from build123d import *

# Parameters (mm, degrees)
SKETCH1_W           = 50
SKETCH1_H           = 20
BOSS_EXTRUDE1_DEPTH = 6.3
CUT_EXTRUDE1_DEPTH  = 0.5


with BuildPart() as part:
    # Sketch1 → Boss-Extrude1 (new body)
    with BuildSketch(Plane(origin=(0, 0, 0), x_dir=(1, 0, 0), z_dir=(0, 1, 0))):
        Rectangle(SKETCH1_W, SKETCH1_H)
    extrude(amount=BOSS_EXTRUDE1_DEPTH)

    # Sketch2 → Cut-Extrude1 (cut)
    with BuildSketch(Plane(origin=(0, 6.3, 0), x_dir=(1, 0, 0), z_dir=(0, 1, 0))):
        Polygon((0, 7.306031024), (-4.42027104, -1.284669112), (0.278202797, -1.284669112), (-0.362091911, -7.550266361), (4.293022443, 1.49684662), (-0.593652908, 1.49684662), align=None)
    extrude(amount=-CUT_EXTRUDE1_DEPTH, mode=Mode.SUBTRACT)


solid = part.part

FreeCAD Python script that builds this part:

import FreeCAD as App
import Part
import Sketcher

V = App.Vector
Q = App.Units.Quantity

doc = App.newDocument("Part")
body = doc.addObject("PartDesign::Body", "Body")

# Sketch on XZ plane
sketch1 = body.newObject("Sketcher::SketchObject", "Sketch")
sketch1.AttachmentSupport = (doc.getObject("XZ_Plane"), [""])
sketch1.MapMode = "FlatFace"
sketch1.addGeometry([
    Part.LineSegment(V(-25, -10, 0), V(-25, 10, 0)),
    Part.LineSegment(V(-25, 10, 0), V(25, 10, 0)),
    Part.LineSegment(V(25, 10, 0), V(25, -10, 0)),
    Part.LineSegment(V(25, -10, 0), V(-25, -10, 0)),
], False)
sketch1.addConstraint([
    Sketcher.Constraint("Coincident", 0, 2, 1, 1),
    Sketcher.Constraint("Coincident", 1, 2, 2, 1),
    Sketcher.Constraint("Coincident", 2, 2, 3, 1),
    Sketcher.Constraint("Coincident", 3, 2, 0, 1),
    Sketcher.Constraint("Vertical", 0),
    Sketcher.Constraint("Horizontal", 1),
    Sketcher.Constraint("Vertical", 2),
    Sketcher.Constraint("Horizontal", 3),
    Sketcher.Constraint("Symmetric", 0, 2, 2, 2, -1, 1),
    Sketcher.Constraint("DistanceX", 1, 1, 1, 2, Q("50 mm")),
    Sketcher.Constraint("DistanceY", 0, 1, 0, 2, Q("20 mm")),
])
pad1 = body.newObject("PartDesign::Pad", "Pad")
pad1.Profile = sketch1
pad1.Length = 6.3
pad1.Reversed = True

# Sketch on XZ plane
sketch2 = body.newObject("Sketcher::SketchObject", "Sketch001")
sketch2.AttachmentSupport = (doc.getObject("XZ_Plane"), [""])
sketch2.MapMode = "FlatFace"
sketch2.AttachmentOffset = App.Placement(V(0, 0, -6.3), App.Rotation())
sketch2.addGeometry([
    Part.LineSegment(V(0, -7.3, 0), V(-4.4, 1.3, 0)),  # 0
    Part.LineSegment(V(-4.4, 1.3, 0), V(0.3, 1.3, 0)),  # 1
    Part.LineSegment(V(0.3, 1.3, 0), V(-0.4, 7.6, 0)),  # 2
    Part.LineSegment(V(-0.4, 7.6, 0), V(4.3, -1.5, 0)),  # 3
    Part.LineSegment(V(4.3, -1.5, 0), V(-0.6, -1.5, 0)),  # 4
    Part.LineSegment(V(-0.6, -1.5, 0), V(0, -7.3, 0)),  # 5
], False)
sketch2.addConstraint([
    Sketcher.Constraint("Coincident", 0, 2, 1, 1),
    Sketcher.Constraint("Coincident", 1, 2, 2, 1),
    Sketcher.Constraint("Coincident", 2, 2, 3, 1),
    Sketcher.Constraint("Coincident", 3, 2, 4, 1),
    Sketcher.Constraint("Coincident", 4, 2, 5, 1),
    Sketcher.Constraint("Coincident", 5, 2, 0, 1),
    Sketcher.Constraint("Horizontal", 1),
    Sketcher.Constraint("Horizontal", 4),
    Sketcher.Constraint("PointOnObject", 5, 2, -2),
    Sketcher.Constraint("Parallel", 0, 3),
    Sketcher.Constraint("Parallel", 2, 5),
    Sketcher.Constraint("DistanceY", 5, 2, 1, 2, Q("8.5907 mm")),
    Sketcher.Constraint("Distance", 2, Q("6.298229 mm")),
    Sketcher.Constraint("Distance", 5, Q("5.839439 mm")),
    Sketcher.Constraint("DistanceX", 1, 1, 1, 2, Q("4.698474 mm")),
    Sketcher.Constraint("DistanceX", 4, 2, 4, 1, Q("4.886675 mm")),
    Sketcher.Constraint("DistanceX", 0, 2, -1, 1, Q("4.420271 mm")),
    Sketcher.Constraint("DistanceY", -1, 1, 0, 2, Q("1.284669 mm")),
])
pocket1 = body.newObject("PartDesign::Pocket", "Pocket")
pocket1.Profile = sketch2
pocket1.Length = 0.5
pocket1.Reversed = True

doc.recompute()
